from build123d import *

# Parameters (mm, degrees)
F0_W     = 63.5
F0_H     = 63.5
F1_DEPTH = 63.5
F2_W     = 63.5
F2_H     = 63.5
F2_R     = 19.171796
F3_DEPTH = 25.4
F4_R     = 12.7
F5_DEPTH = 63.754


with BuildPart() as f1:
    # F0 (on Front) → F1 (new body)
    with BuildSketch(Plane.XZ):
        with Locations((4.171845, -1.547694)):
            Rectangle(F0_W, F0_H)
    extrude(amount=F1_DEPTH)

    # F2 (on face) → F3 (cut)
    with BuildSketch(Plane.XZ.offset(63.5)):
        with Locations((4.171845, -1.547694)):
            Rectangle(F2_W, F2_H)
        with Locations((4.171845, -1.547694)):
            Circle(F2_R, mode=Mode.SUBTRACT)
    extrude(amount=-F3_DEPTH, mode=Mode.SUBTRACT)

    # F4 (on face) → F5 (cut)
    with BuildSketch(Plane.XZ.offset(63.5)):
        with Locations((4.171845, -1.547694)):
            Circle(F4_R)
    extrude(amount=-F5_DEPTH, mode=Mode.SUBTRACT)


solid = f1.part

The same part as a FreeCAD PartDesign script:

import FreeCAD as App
import Part
import Sketcher
Q = App.Units.Quantity


def add_polygon(sketch, points):
    """Adds a closed chain of lines whose ends are joined by coincident constraints."""
    first, n = sketch.GeometryCount, len(points)
    for a, b in zip(points, points[1:] + points[:1]):
        sketch.addGeometry(Part.LineSegment(App.Vector(*a, 0), App.Vector(*b, 0)), False)
    for i in range(n):
        sketch.addConstraint(Sketcher.Constraint("Coincident", first + i, 2, first + (i + 1) % n, 1))

doc = App.newDocument("Part")
body = doc.addObject("PartDesign::Body", "Body")

# Sketch on XZ plane
sketch1 = body.newObject("Sketcher::SketchObject", "Sketch")
sketch1.AttachmentSupport = (doc.getObject("XZ_Plane"), [""])
sketch1.MapMode = "FlatFace"
add_polygon(sketch1, [(-28, 30), (-28, -33), (36, -33), (36, 30)])  # lines 0-3
sketch1.addConstraint(Sketcher.Constraint("Vertical", 0))
sketch1.addConstraint(Sketcher.Constraint("Horizontal", 1))
sketch1.addConstraint(Sketcher.Constraint("Vertical", 2))
sketch1.addConstraint(Sketcher.Constraint("Horizontal", 3))
sketch1.addConstraint(Sketcher.Constraint("Equal", 3, 0))
sketch1.addConstraint(Sketcher.Constraint("DistanceX", 1, 1, 1, 2, Q("2.5 in")))
sketch1.addConstraint(Sketcher.Constraint("DistanceX", 0, 2, -1, 1, Q("27.578155 mm")))
sketch1.addConstraint(Sketcher.Constraint("DistanceY", 0, 2, -1, 1, Q("33.297694 mm")))
pad1 = body.newObject("PartDesign::Pad", "Pad")
pad1.Profile = sketch1
pad1.Length = Q("2.5 in")

# Sketch on XZ plane
sketch2 = body.newObject("Sketcher::SketchObject", "Sketch001")
sketch2.AttachmentSupport = (doc.getObject("XZ_Plane"), [""])
sketch2.MapMode = "FlatFace"
sketch2.AttachmentOffset = App.Placement(App.Vector(0, 0, 2.5 * 25.4), App.Rotation())
add_polygon(sketch2, [(-28, 30), (-28, -33), (36, -33), (36, 30)])  # lines 0-3
sketch2.addGeometry(Part.Circle(App.Vector(4, -2, 0), App.Vector(0, 0, 1), 19), False)  # 4
sketch2.addConstraint(Sketcher.Constraint("Vertical", 0))
sketch2.addConstraint(Sketcher.Constraint("Horizontal", 1))
sketch2.addConstraint(Sketcher.Constraint("Vertical", 2))
sketch2.addConstraint(Sketcher.Constraint("Horizontal", 3))
sketch2.addConstraint(Sketcher.Constraint("Equal", 3, 0))
sketch2.addConstraint(Sketcher.Constraint("DistanceX", 1, 1, 1, 2, Q("2.5 in")))
sketch2.addConstraint(Sketcher.Constraint("DistanceX", 0, 2, 4, 3, Q("1.25 in")))
sketch2.addConstraint(Sketcher.Constraint("DistanceY", 0, 2, 4, 3, Q("1.25 in")))
sketch2.addConstraint(Sketcher.Constraint("Diameter", 4, Q("38.343592 mm")))
sketch2.addConstraint(Sketcher.Constraint("DistanceX", -1, 1, 4, 3, Q("4.171845 mm")))
sketch2.addConstraint(Sketcher.Constraint("DistanceY", 4, 3, -1, 1, Q("1.547694 mm")))
pocket1 = body.newObject("PartDesign::Pocket", "Pocket")
pocket1.Profile = sketch2
pocket1.Length = Q("1 in")

# Sketch on XZ plane
sketch3 = body.newObject("Sketcher::SketchObject", "Sketch002")
sketch3.AttachmentSupport = (doc.getObject("XZ_Plane"), [""])
sketch3.MapMode = "FlatFace"
sketch3.AttachmentOffset = App.Placement(App.Vector(0, 0, 2.5 * 25.4), App.Rotation())
sketch3.addGeometry(Part.Circle(App.Vector(4, -2, 0), App.Vector(0, 0, 1), 13), False)
sketch3.addConstraint(Sketcher.Constraint("Diameter", 0, Q("1 in")))
sketch3.addConstraint(Sketcher.Constraint("DistanceX", -1, 1, 0, 3, Q("4.171845 mm")))
sketch3.addConstraint(Sketcher.Constraint("DistanceY", 0, 3, -1, 1, Q("1.547694 mm")))
pocket2 = body.newObject("PartDesign::Pocket", "Pocket001")
pocket2.Profile = sketch3
pocket2.Length = Q("2.51 in")

doc.recompute()
